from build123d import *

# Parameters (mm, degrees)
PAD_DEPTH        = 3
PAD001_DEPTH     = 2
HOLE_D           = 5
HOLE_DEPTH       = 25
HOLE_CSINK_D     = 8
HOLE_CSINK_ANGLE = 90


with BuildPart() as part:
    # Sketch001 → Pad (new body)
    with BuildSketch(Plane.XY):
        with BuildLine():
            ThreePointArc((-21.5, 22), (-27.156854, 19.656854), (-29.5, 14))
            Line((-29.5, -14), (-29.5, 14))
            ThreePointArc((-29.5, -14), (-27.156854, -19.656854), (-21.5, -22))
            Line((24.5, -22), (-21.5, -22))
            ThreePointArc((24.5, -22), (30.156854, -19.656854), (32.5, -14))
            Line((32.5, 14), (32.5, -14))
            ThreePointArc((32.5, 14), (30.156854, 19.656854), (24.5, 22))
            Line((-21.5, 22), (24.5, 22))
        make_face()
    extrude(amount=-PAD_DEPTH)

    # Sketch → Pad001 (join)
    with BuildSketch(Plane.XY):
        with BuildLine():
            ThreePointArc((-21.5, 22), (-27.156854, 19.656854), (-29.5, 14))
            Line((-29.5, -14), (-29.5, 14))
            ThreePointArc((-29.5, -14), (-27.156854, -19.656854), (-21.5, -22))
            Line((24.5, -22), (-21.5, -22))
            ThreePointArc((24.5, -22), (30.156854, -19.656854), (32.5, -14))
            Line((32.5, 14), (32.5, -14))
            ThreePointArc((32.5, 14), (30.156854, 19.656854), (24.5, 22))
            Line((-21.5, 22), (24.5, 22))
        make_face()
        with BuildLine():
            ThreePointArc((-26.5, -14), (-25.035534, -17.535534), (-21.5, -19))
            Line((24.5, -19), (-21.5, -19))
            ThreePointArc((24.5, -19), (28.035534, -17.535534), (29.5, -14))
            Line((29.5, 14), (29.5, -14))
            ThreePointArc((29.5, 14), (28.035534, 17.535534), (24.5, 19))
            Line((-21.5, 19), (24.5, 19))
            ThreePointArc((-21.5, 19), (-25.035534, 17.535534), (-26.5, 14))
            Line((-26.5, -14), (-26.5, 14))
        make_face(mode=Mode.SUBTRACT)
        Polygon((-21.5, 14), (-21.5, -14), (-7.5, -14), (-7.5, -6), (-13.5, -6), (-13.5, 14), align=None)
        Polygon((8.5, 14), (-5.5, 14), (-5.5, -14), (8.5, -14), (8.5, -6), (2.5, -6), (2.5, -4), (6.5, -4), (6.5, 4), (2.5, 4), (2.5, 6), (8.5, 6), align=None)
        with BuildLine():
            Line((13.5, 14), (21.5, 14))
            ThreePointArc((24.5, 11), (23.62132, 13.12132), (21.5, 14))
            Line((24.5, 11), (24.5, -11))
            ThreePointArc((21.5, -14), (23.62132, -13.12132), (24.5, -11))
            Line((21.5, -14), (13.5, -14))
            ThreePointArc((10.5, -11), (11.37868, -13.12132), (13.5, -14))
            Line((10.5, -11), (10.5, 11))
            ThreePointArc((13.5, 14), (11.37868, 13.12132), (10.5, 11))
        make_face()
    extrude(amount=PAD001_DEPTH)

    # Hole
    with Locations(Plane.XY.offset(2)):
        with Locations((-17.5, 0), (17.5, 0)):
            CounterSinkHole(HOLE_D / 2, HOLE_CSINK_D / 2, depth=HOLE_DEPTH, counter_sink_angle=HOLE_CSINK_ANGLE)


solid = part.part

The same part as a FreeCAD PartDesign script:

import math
import FreeCAD as App
import Part
import Sketcher

V = App.Vector
Q = App.Units.Quantity

doc = App.newDocument("Part")
params = doc.addObject("Spreadsheet::Sheet", "Params")
for row, (alias, value) in enumerate([
    ("sketch1_radius", "8.000001 mm"),
    ("sketch1_width", "46 mm"),
    ("sketch1_height", "28 mm"),
    ("pad1_length", "3 mm"),
    ("sketch2_radius", "8.000001 mm"),
    ("sketch2_radius2", "5 mm"),
    ("sketch2_width", "46 mm"),
    ("sketch2_width2", "14 mm"),
    ("sketch2_width3", "6 mm"),
    ("pad2_length", "2 mm"),
    ("sketch3_diameter", "5 mm"),
    ("hole_diameter", "5 mm"),
    ("hole_depth", "25 mm"),
    ("hole_csink_diameter", "8 mm"),
], start=1):
    params.set(f"A{row}", alias)
    params.set(f"B{row}", "=" + value)
    params.setAlias(f"B{row}", alias)

body = doc.addObject("PartDesign::Body", "Body")

# Sketch on XY plane
sketch1 = body.newObject("Sketcher::SketchObject", "Sketch")
sketch1.AttachmentSupport = (doc.getObject("XY_Plane"), [""])
sketch1.MapMode = "FlatFace"
sketch1.addGeometry(Part.ArcOfCircle(Part.Circle(V(-21, 14, 0), V(0, 0, 1), 8), math.radians(90), math.radians(180)), False)
sketch1.addGeometry(Part.LineSegment(V(-30, 14, 0), V(-30, -14, 0)), False)
sketch1.addGeometry(Part.ArcOfCircle(Part.Circle(V(-21, -14, 0), V(0, 0, 1), 8), math.radians(-180), math.radians(-90)), False)
sketch1.addGeometry(Part.LineSegment(V(-22, -22, 0), V(24, -22, 0)), False)
sketch1.addGeometry(Part.ArcOfCircle(Part.Circle(V(24, -14, 0), V(0, 0, 1), 8), math.radians(-90), math.radians(0)), False)
sketch1.addGeometry(Part.LineSegment(V(32, -14, 0), V(32, 14, 0)), False)
sketch1.addGeometry(Part.ArcOfCircle(Part.Circle(V(24, 14, 0), V(0, 0, 1), 8), math.radians(0), math.radians(90)), False)
sketch1.addGeometry(Part.LineSegment(V(24, 22, 0), V(-22, 22, 0)), False)
sketch1.addConstraint(Sketcher.Constraint("Tangent", 0, 2, 1, 1))
sketch1.addConstraint(Sketcher.Constraint("Tangent", 1, 2, 2, 1))
sketch1.addConstraint(Sketcher.Constraint("Tangent", 2, 2, 3, 1))
sketch1.addConstraint(Sketcher.Constraint("Tangent", 3, 2, 4, 1))
sketch1.addConstraint(Sketcher.Constraint("Tangent", 4, 2, 5, 1))
sketch1.addConstraint(Sketcher.Constraint("Tangent", 5, 2, 6, 1))
sketch1.addConstraint(Sketcher.Constraint("Tangent", 6, 2, 7, 1))
sketch1.addConstraint(Sketcher.Constraint("Tangent", 7, 2, 0, 1))
sketch1.addConstraint(Sketcher.Constraint("Vertical", 1))
sketch1.addConstraint(Sketcher.Constraint("Horizontal", 3))
sketch1.addConstraint(Sketcher.Constraint("Vertical", 5))
sketch1.addConstraint(Sketcher.Constraint("Horizontal", 7))
sketch1.addConstraint(Sketcher.Constraint("Equal", 0, 2))
sketch1.addConstraint(Sketcher.Constraint("Equal", 2, 4))
sketch1.addConstraint(Sketcher.Constraint("Equal", 4, 6))
sketch1.addConstraint(Sketcher.Constraint("Radius", 0, Q("8.000001 mm")))
sketch1.addConstraint(Sketcher.Constraint("DistanceX", 3, 1, 3, 2, Q("46 mm")))
sketch1.addConstraint(Sketcher.Constraint("DistanceY", 1, 2, 1, 1, Q("28 mm")))
sketch1.addConstraint(Sketcher.Constraint("DistanceY", -1, 1, 0, 3, Q("13.999999 mm")))
sketch1.addConstraint(Sketcher.Constraint("DistanceX", 0, 3, -1, 1, Q("21.499999 mm")))
sketch1.setExpression("Constraints[15]", "Params.sketch1_radius")
sketch1.setExpression("Constraints[16]", "Params.sketch1_width")
sketch1.setExpression("Constraints[17]", "Params.sketch1_height")
pad1 = body.newObject("PartDesign::Pad", "Pad")
pad1.Profile = sketch1
pad1.setExpression("Length", "Params.pad1_length")
pad1.Reversed = True

# Sketch on XY plane
sketch2 = body.newObject("Sketcher::SketchObject", "Sketch001")
sketch2.AttachmentSupport = (doc.getObject("XY_Plane"), [""])
sketch2.MapMode = "FlatFace"
sketch2.addGeometry(Part.ArcOfCircle(Part.Circle(V(-21.5, 14, 0), V(0, 0, 1), 8), math.radians(90), math.radians(180)), False)
sketch2.addGeometry(Part.LineSegment(V(-29.5, 14, 0), V(-29.5, -14, 0)), False)
sketch2.addGeometry(Part.ArcOfCircle(Part.Circle(V(-21.5, -14, 0), V(0, 0, 1), 8), math.radians(-180), math.radians(-90)), False)
sketch2.addGeometry(Part.LineSegment(V(-21.5, -22, 0), V(24.5, -22, 0)), False)
sketch2.addGeometry(Part.ArcOfCircle(Part.Circle(V(24.5, -14, 0), V(0, 0, 1), 8), math.radians(-90), math.radians(0)), False)
sketch2.addGeometry(Part.LineSegment(V(32.5, -14, 0), V(32.5, 14, 0)), False)
sketch2.addGeometry(Part.ArcOfCircle(Part.Circle(V(24.5, 14, 0), V(0, 0, 1), 8), math.radians(0), math.radians(90)), False)
sketch2.addGeometry(Part.LineSegment(V(24.5, 22, 0), V(-21.5, 22, 0)), False)
sketch2.addGeometry(Part.ArcOfCircle(Part.Circle(V(-21.5, -14, 0), V(0, 0, 1), 5), math.radians(180), math.radians(270)), False)
sketch2.addGeometry(Part.LineSegment(V(-26.5, -14, 0), V(-26.5, 14, 0)), False)
sketch2.addGeometry(Part.ArcOfCircle(Part.Circle(V(-21.5, 14, 0), V(0, 0, 1), 5), math.radians(90), math.radians(180)), False)
sketch2.addGeometry(Part.LineSegment(V(-21.5, 19, 0), V(24.5, 19, 0)), False)
sketch2.addGeometry(Part.ArcOfCircle(Part.Circle(V(24.5, 14, 0), V(0, 0, 1), 5), math.radians(0), math.radians(90)), False)
sketch2.addGeometry(Part.LineSegment(V(29.5, 14, 0), V(29.5, -14, 0)), False)
sketch2.addGeometry(Part.ArcOfCircle(Part.Circle(V(24.5, -14, 0), V(0, 0, 1), 5), math.radians(-90), math.radians(0)), False)
sketch2.addGeometry(Part.LineSegment(V(24.5, -19, 0), V(-21.5, -19, 0)), False)
sketch2.addGeometry(Part.LineSegment(V(-21.5, 14, 0), V(-21.5, -14, 0)), False)
sketch2.addGeometry(Part.LineSegment(V(-21.5, -14, 0), V(-7.5, -14, 0)), False)
sketch2.addGeometry(Part.LineSegment(V(-7.5, -14, 0), V(-7.5, -6, 0)), False)
sketch2.addGeometry(Part.LineSegment(V(-7.5, -6, 0), V(-13.5, -6, 0)), False)
sketch2.addGeometry(Part.LineSegment(V(-13.5, -6, 0), V(-13.5, 14, 0)), False)
sketch2.addGeometry(Part.LineSegment(V(-13.5, 14, 0), V(-21.5, 14, 0)), False)
sketch2.addGeometry(Part.LineSegment(V(8.5, 14, 0), V(-5.5, 14, 0)), False)
sketch2.addGeometry(Part.LineSegment(V(-5.5, 14, 0), V(-5.5, -14, 0)), False)
sketch2.addGeometry(Part.LineSegment(V(-5.5, -14, 0), V(8.5, -14, 0)), False)
sketch2.addGeometry(Part.LineSegment(V(8.5, -14, 0), V(8.5, -6, 0)), False)
sketch2.addGeometry(Part.LineSegment(V(8.5, -6, 0), V(2.5, -6, 0)), False)
sketch2.addGeometry(Part.LineSegment(V(2.5, -6, 0), V(2.5, -4, 0)), False)
sketch2.addGeometry(Part.LineSegment(V(2.5, -4, 0), V(6.5, -4, 0)), False)
sketch2.addGeometry(Part.LineSegment(V(6.5, -4, 0), V(6.5, 4, 0)), False)
sketch2.addGeometry(Part.LineSegment(V(6.5, 4, 0), V(2.5, 4, 0)), False)
sketch2.addGeometry(Part.LineSegment(V(2.5, 4, 0), V(2.5, 6, 0)), False)
sketch2.addGeometry(Part.LineSegment(V(2.5, 6, 0), V(8.5, 6, 0)), False)
sketch2.addGeometry(Part.LineSegment(V(8.5, 6, 0), V(8.5, 14, 0)), False)
sketch2.addGeometry(Part.LineSegment(V(21.5, 14, 0), V(13.5, 14, 0)), False)
sketch2.addGeometry(Part.ArcOfCircle(Part.Circle(V(13.5, 11, 0), V(0, 0, 1), 3), math.radians(90), math.radians(180)), False)
sketch2.addGeometry(Part.LineSegment(V(10.5, 11, 0), V(10.5, -11, 0)), False)
sketch2.addGeometry(Part.ArcOfCircle(Part.Circle(V(13.5, -11, 0), V(0, 0, 1), 3), math.radians(-180), math.radians(-90)), False)
sketch2.addGeometry(Part.LineSegment(V(13.5, -14, 0), V(21.5, -14, 0)), False)
sketch2.addGeometry(Part.ArcOfCircle(Part.Circle(V(21.5, -11, 0), V(0, 0, 1), 3), math.radians(-90), math.radians(0)), False)
sketch2.addGeometry(Part.LineSegment(V(24.5, -11, 0), V(24.5, 11, 0)), False)
sketch2.addGeometry(Part.ArcOfCircle(Part.Circle(V(21.5, 11, 0), V(0, 0, 1), 3), math.radians(0), math.radians(90)), False)
sketch2.addConstraint(Sketcher.Constraint("Tangent", 0, 2, 1, 1))
sketch2.addConstraint(Sketcher.Constraint("Tangent", 1, 2, 2, 1))
sketch2.addConstraint(Sketcher.Constraint("Tangent", 2, 2, 3, 1))
sketch2.addConstraint(Sketcher.Constraint("Tangent", 3, 2, 4, 1))
sketch2.addConstraint(Sketcher.Constraint("Tangent", 4, 2, 5, 1))
sketch2.addConstraint(Sketcher.Constraint("Tangent", 5, 2, 6, 1))
sketch2.addConstraint(Sketcher.Constraint("Tangent", 6, 2, 7, 1))
sketch2.addConstraint(Sketcher.Constraint("Tangent", 7, 2, 0, 1))
sketch2.addConstraint(Sketcher.Constraint("Tangent", 8, 1, 9, 1))
sketch2.addConstraint(Sketcher.Constraint("Tangent", 9, 2, 10, 2))
sketch2.addConstraint(Sketcher.Constraint("Tangent", 10, 1, 11, 1))
sketch2.addConstraint(Sketcher.Constraint("Tangent", 11, 2, 12, 2))
sketch2.addConstraint(Sketcher.Constraint("Tangent", 12, 1, 13, 1))
sketch2.addConstraint(Sketcher.Constraint("Tangent", 13, 2, 14, 2))
sketch2.addConstraint(Sketcher.Constraint("Tangent", 14, 1, 15, 1))
sketch2.addConstraint(Sketcher.Constraint("Tangent", 15, 2, 8, 2))
sketch2.addConstraint(Sketcher.Constraint("Coincident", 16, 2, 17, 1))
sketch2.addConstraint(Sketcher.Constraint("Coincident", 17, 2, 18, 1))
sketch2.addConstraint(Sketcher.Constraint("Coincident", 18, 2, 19, 1))
sketch2.addConstraint(Sketcher.Constraint("Coincident", 19, 2, 20, 1))
sketch2.addConstraint(Sketcher.Constraint("Coincident", 20, 2, 21, 1))
sketch2.addConstraint(Sketcher.Constraint("Coincident", 21, 2, 16, 1))
sketch2.addConstraint(Sketcher.Constraint("Coincident", 22, 2, 23, 1))
sketch2.addConstraint(Sketcher.Constraint("Coincident", 23, 2, 24, 1))
sketch2.addConstraint(Sketcher.Constraint("Coincident", 24, 2, 25, 1))
sketch2.addConstraint(Sketcher.Constraint("Coincident", 25, 2, 26, 1))
sketch2.addConstraint(Sketcher.Constraint("Coincident", 26, 2, 27, 1))
sketch2.addConstraint(Sketcher.Constraint("Coincident", 27, 2, 28, 1))
sketch2.addConstraint(Sketcher.Constraint("Coincident", 28, 2, 29, 1))
sketch2.addConstraint(Sketcher.Constraint("Coincident", 29, 2, 30, 1))
sketch2.addConstraint(Sketcher.Constraint("Coincident", 30, 2, 31, 1))
sketch2.addConstraint(Sketcher.Constraint("Coincident", 31, 2, 32, 1))
sketch2.addConstraint(Sketcher.Constraint("Coincident", 32, 2, 33, 1))
sketch2.addConstraint(Sketcher.Constraint("Coincident", 33, 2, 22, 1))
sketch2.addConstraint(Sketcher.Constraint("Tangent", 34, 2, 35, 1))
sketch2.addConstraint(Sketcher.Constraint("Tangent", 35, 2, 36, 1))
sketch2.addConstraint(Sketcher.Constraint("Tangent", 36, 2, 37, 1))
sketch2.addConstraint(Sketcher.Constraint("Tangent", 37, 2, 38, 1))
sketch2.addConstraint(Sketcher.Constraint("Tangent", 38, 2, 39, 1))
sketch2.addConstraint(Sketcher.Constraint("Tangent", 39, 2, 40, 1))
sketch2.addConstraint(Sketcher.Constraint("Tangent", 40, 2, 41, 1))
sketch2.addConstraint(Sketcher.Constraint("Tangent", 41, 2, 34, 1))
sketch2.addConstraint(Sketcher.Constraint("Vertical", 1))
sketch2.addConstraint(Sketcher.Constraint("Horizontal", 3))
sketch2.addConstraint(Sketcher.Constraint("Vertical", 5))
sketch2.addConstraint(Sketcher.Constraint("Horizontal", 7))
sketch2.addConstraint(Sketcher.Constraint("Vertical", 9))
sketch2.addConstraint(Sketcher.Constraint("Horizontal", 11))
sketch2.addConstraint(Sketcher.Constraint("Vertical", 13))
sketch2.addConstraint(Sketcher.Constraint("Horizontal", 15))
sketch2.addConstraint(Sketcher.Constraint("Vertical", 16))
sketch2.addConstraint(Sketcher.Constraint("Horizontal", 17))
sketch2.addConstraint(Sketcher.Constraint("Vertical", 18))
sketch2.addConstraint(Sketcher.Constraint("Horizontal", 19))
sketch2.addConstraint(Sketcher.Constraint("Vertical", 20))
sketch2.addConstraint(Sketcher.Constraint("Horizontal", 21))
sketch2.addConstraint(Sketcher.Constraint("Horizontal", 22))
sketch2.addConstraint(Sketcher.Constraint("Vertical", 23))
sketch2.addConstraint(Sketcher.Constraint("Horizontal", 24))
sketch2.addConstraint(Sketcher.Constraint("Vertical", 25))
sketch2.addConstraint(Sketcher.Constraint("Horizontal", 26))
sketch2.addConstraint(Sketcher.Constraint("Vertical", 27))
sketch2.addConstraint(Sketcher.Constraint("Horizontal", 28))
sketch2.addConstraint(Sketcher.Constraint("Vertical", 29))
sketch2.addConstraint(Sketcher.Constraint("Horizontal", 30))
sketch2.addConstraint(Sketcher.Constraint("Vertical", 31))
sketch2.addConstraint(Sketcher.Constraint("Horizontal", 32))
sketch2.addConstraint(Sketcher.Constraint("Vertical", 33))
sketch2.addConstraint(Sketcher.Constraint("Horizontal", 34))
sketch2.addConstraint(Sketcher.Constraint("Vertical", 36))
sketch2.addConstraint(Sketcher.Constraint("Horizontal", 38))
sketch2.addConstraint(Sketcher.Constraint("Vertical", 40))
sketch2.addConstraint(Sketcher.Constraint("Coincident", 8, 3, 2, 3))
sketch2.addConstraint(Sketcher.Constraint("Coincident", 10, 3, 0, 3))
sketch2.addConstraint(Sketcher.Constraint("Coincident", 12, 3, 6, 3))
sketch2.addConstraint(Sketcher.Constraint("Coincident", 16, 2, 2, 3))
sketch2.addConstraint(Sketcher.Constraint("Coincident", 21, 2, 0, 3))
sketch2.addConstraint(Sketcher.Constraint("Equal", 2, 4))
sketch2.addConstraint(Sketcher.Constraint("Equal", 4, 6))
sketch2.addConstraint(Sketcher.Constraint("Equal", 12, 14))
sketch2.addConstraint(Sketcher.Constraint("Equal", 35, 37))
sketch2.addConstraint(Sketcher.Constraint("Equal", 37, 39))
sketch2.addConstraint(Sketcher.Constraint("Equal", 39, 41))
sketch2.addConstraint(Sketcher.Constraint("Symmetric", 1, 2, 12, 1, -1, 1))
sketch2.addConstraint(Sketcher.Constraint("Symmetric", 20, 2, 37, 2, -1, 1))
sketch2.addConstraint(Sketcher.Constraint("Symmetric", 16, 2, 41, 2, -1, 1))
sketch2.addConstraint(Sketcher.Constraint("Symmetric", 27, 2, 30, 2, -1))
sketch2.addConstraint(Sketcher.Constraint("Symmetric", 25, 2, 32, 2, -1))
sketch2.addConstraint(Sketcher.Constraint("Horizontal", 21, 2, 22, 2))
sketch2.addConstraint(Sketcher.Constraint("Horizontal", 17, 2, 23, 2))
sketch2.addConstraint(Sketcher.Constraint("Horizontal", 19, 2, 25, 2))
sketch2.addConstraint(Sketcher.Constraint("Vertical", 14, 1, 39, 2))
sketch2.addConstraint(Sketcher.Constraint("Equal", 17, 22))
sketch2.addConstraint(Sketcher.Constraint("Equal", 19, 26))
sketch2.addConstraint(Sketcher.Constraint("Equal", 38, 18))
sketch2.addConstraint(Sketcher.Constraint("Equal", 25, 29))
sketch2.addConstraint(Sketcher.Constraint("Radius", 0, Q("8.000001 mm")))
sketch2.addConstraint(Sketcher.Constraint("Radius", 8, Q("5 mm")))
sketch2.addConstraint(Sketcher.Constraint("DistanceX", 3, 1, 3, 2, Q("46 mm")))
sketch2.addConstraint(Sketcher.Constraint("DistanceX", 17, 1, 17, 2, Q("14 mm")))
sketch2.addConstraint(Sketcher.Constraint("DistanceX", 19, 2, 19, 1, Q("6 mm")))
sketch2.addConstraint(Sketcher.Constraint("DistanceX", 28, 1, 28, 2, Q("4 mm")))
sketch2.addConstraint(Sketcher.Constraint("DistanceY", 1, 2, 1, 1, Q("28 mm")))
sketch2.addConstraint(Sketcher.Constraint("DistanceX", 20, 2, 22, 2, Q("8 mm")))
sketch2.setExpression("Constraints[96]", "Params.sketch2_radius")
sketch2.setExpression("Constraints[97]", "Params.sketch2_radius2")
sketch2.setExpression("Constraints[98]", "Params.sketch2_width")
sketch2.setExpression("Constraints[99]", "Params.sketch2_width2")
sketch2.setExpression("Constraints[100]", "Params.sketch2_width3")
pad2 = body.newObject("PartDesign::Pad", "Pad001")
pad2.Profile = sketch2
pad2.setExpression("Length", "Params.pad2_length")

# Sketch on XY plane
sketch3 = body.newObject("Sketcher::SketchObject", "Sketch002")
sketch3.AttachmentSupport = (doc.getObject("XY_Plane"), [""])
sketch3.MapMode = "FlatFace"
sketch3.AttachmentOffset = App.Placement(V(0, 0, 2), App.Rotation())
sketch3.addGeometry(Part.Circle(V(-17.5, 0, 0), V(0, 0, 1), 2.5), False)
sketch3.addGeometry(Part.Circle(V(17.5, 0, 0), V(0, 0, 1), 2.5), False)
sketch3.addConstraint(Sketcher.Constraint("Equal", 0, 1))
sketch3.addConstraint(Sketcher.Constraint("Symmetric", 0, 3, 1, 3, -1, 1))
sketch3.addConstraint(Sketcher.Constraint("PointOnObject", 0, 3, -1))
sketch3.addConstraint(Sketcher.Constraint("Diameter", 0, Q("5 mm")))
sketch3.addConstraint(Sketcher.Constraint("DistanceX", 0, 3, 1, 3, Q("35 mm")))
sketch3.setExpression("Constraints[3]", "Params.sketch3_diameter")
doc.recompute()
hole = body.newObject("PartDesign::Hole", "Hole")
hole.Profile = sketch3
hole.ThreadType = "None"
hole.setExpression("Diameter", "Params.hole_diameter")
hole.DepthType = "Dimension"
hole.setExpression("Depth", "Params.hole_depth")
hole.DrillPoint = "Flat"
hole.HoleCutType = "Countersink"
hole.setExpression("HoleCutDiameter", "Params.hole_csink_diameter")
hole.HoleCutCountersinkAngle = 90

doc.recompute()
